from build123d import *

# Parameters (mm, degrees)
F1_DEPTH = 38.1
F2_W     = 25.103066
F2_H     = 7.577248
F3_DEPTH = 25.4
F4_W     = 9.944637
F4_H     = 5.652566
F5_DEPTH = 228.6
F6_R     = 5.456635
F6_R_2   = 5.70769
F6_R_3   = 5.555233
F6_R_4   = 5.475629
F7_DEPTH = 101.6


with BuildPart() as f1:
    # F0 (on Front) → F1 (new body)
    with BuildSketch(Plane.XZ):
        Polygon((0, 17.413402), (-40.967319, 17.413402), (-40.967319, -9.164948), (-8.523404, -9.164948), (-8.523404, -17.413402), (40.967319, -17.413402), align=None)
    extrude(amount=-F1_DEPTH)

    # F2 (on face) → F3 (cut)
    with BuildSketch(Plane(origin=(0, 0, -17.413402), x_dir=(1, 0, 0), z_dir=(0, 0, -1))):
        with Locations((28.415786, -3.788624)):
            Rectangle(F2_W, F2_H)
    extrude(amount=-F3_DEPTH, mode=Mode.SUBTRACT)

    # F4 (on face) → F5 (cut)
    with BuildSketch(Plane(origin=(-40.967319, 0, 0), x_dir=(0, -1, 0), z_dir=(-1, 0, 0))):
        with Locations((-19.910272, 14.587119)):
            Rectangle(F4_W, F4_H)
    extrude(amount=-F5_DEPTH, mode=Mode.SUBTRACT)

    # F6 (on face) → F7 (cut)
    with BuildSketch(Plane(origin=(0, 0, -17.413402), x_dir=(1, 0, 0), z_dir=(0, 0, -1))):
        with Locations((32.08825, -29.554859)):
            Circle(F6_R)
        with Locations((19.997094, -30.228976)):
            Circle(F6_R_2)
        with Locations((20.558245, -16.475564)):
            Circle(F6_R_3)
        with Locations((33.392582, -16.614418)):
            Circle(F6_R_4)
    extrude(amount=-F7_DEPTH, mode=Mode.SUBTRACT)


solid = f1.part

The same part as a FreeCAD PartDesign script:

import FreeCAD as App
import Part
import Sketcher
Q = App.Units.Quantity


def add_polygon(sketch, points):
    """Adds a closed chain of lines whose ends are joined by coincident constraints."""
    first, n = sketch.GeometryCount, len(points)
    for a, b in zip(points, points[1:] + points[:1]):
        sketch.addGeometry(Part.LineSegment(App.Vector(*a, 0), App.Vector(*b, 0)), False)
    for i in range(n):
        sketch.addConstraint(Sketcher.Constraint("Coincident", first + i, 2, first + (i + 1) % n, 1))

doc = App.newDocument("Part")
body = doc.addObject("PartDesign::Body", "Body")

sketch1 = body.newObject("Sketcher::SketchObject", "Sketch")
sketch1.AttachmentSupport = (doc.getObject("XZ_Plane"), [""])
sketch1.MapMode = "FlatFace"
add_polygon(sketch1, [(0, 17.413402), (-40.967319, 17.413402), (-40.967319, -9.164948), (-8.523404, -9.164948), (-8.523404, -17.413402), (40.967319, -17.413402)])
sketch1.addConstraint([
    Sketcher.Constraint("Horizontal", 0),
    Sketcher.Constraint("Vertical", 1),
    Sketcher.Constraint("Horizontal", 2),
    Sketcher.Constraint("Vertical", 3),
    Sketcher.Constraint("Horizontal", 4),
    Sketcher.Constraint("Symmetric", 0, 2, 4, 2, -1, 1),
    Sketcher.Constraint("PointOnObject", 5, 2, -2),
    Sketcher.Constraint("DistanceX", 0, 2, 0, 1, Q("40.967319 mm")),
    Sketcher.Constraint("DistanceY", 1, 2, 1, 1, Q("26.57835 mm")),
    Sketcher.Constraint("DistanceX", 2, 1, 2, 2, Q("32.443915 mm")),
    Sketcher.Constraint("DistanceY", 3, 2, 3, 1, Q("8.248454 mm")),
])
pad1 = body.newObject("PartDesign::Pad", "Pad")
pad1.Profile = sketch1
pad1.Length = Q("1.5 in")
pad1.Reversed = True

sketch2 = body.newObject("Sketcher::SketchObject", "Sketch001")
sketch2.AttachmentSupport = (doc.getObject("XY_Plane"), [""])
sketch2.MapMode = "FlatFace"
sketch2.AttachmentOffset = App.Placement(App.Vector(0, 0, -17.413402), App.Rotation())
add_polygon(sketch2, [(15.864253, 0), (15.864253, 7.577248), (40.967319, 7.577248), (40.967319, 0)])
sketch2.addConstraint([
    Sketcher.Constraint("Vertical", 0),
    Sketcher.Constraint("Horizontal", 1),
    Sketcher.Constraint("Vertical", 2),
    Sketcher.Constraint("Horizontal", 3),
    Sketcher.Constraint("PointOnObject", 2, 2, -1),
    Sketcher.Constraint("DistanceX", 1, 1, 1, 2, Q("25.103066 mm")),
    Sketcher.Constraint("DistanceY", 0, 1, 0, 2, Q("7.577248 mm")),
    Sketcher.Constraint("DistanceX", -1, 1, 1, 2, Q("40.967319 mm")),
])
pocket1 = body.newObject("PartDesign::Pocket", "Pocket")
pocket1.Profile = sketch2
pocket1.Length = Q("1 in")
pocket1.Reversed = True

sketch3 = body.newObject("Sketcher::SketchObject", "Sketch002")
sketch3.AttachmentSupport = (doc.getObject("YZ_Plane"), [""])
sketch3.MapMode = "FlatFace"
sketch3.AttachmentOffset = App.Placement(App.Vector(0, 0, -40.967319), App.Rotation())
add_polygon(sketch3, [(24.88259, 17.413402), (24.88259, 11.760836), (14.937954, 11.760836), (14.937954, 17.413402)])
sketch3.addConstraint([
    Sketcher.Constraint("Vertical", 0),
    Sketcher.Constraint("Horizontal", 1),
    Sketcher.Constraint("Vertical", 2),
    Sketcher.Constraint("Horizontal", 3),
    Sketcher.Constraint("DistanceX", 1, 2, 1, 1, Q("9.944637 mm")),
    Sketcher.Constraint("DistanceY", 0, 2, 0, 1, Q("5.652566 mm")),
    Sketcher.Constraint("DistanceX", -1, 1, 0, 2, Q("24.88259 mm")),
    Sketcher.Constraint("DistanceY", -1, 1, 0, 2, Q("11.760836 mm")),
])
pocket2 = body.newObject("PartDesign::Pocket", "Pocket001")
pocket2.Profile = sketch3
pocket2.Length = Q("9 in")
pocket2.Reversed = True

sketch4 = body.newObject("Sketcher::SketchObject", "Sketch003")
sketch4.AttachmentSupport = (doc.getObject("XY_Plane"), [""])
sketch4.MapMode = "FlatFace"
sketch4.AttachmentOffset = App.Placement(App.Vector(0, 0, -17.413402), App.Rotation())
sketch4.addGeometry([
    Part.Circle(App.Vector(32.08825, 29.554859, 0), App.Vector(0, 0, 1), 5.456635),
    Part.Circle(App.Vector(19.997094, 30.228976, 0), App.Vector(0, 0, 1), 5.70769),
    Part.Circle(App.Vector(20.558245, 16.475564, 0), App.Vector(0, 0, 1), 5.555233),
    Part.Circle(App.Vector(33.392582, 16.614418, 0), App.Vector(0, 0, 1), 5.475629),
], False)
sketch4.addConstraint([
    Sketcher.Constraint("Diameter", 0, Q("10.91327 mm")),
    Sketcher.Constraint("Diameter", 1, Q("11.41538 mm")),
    Sketcher.Constraint("Diameter", 2, Q("11.110466 mm")),
    Sketcher.Constraint("Diameter", 3, Q("10.951258 mm")),
    Sketcher.Constraint("DistanceX", -1, 1, 0, 3, Q("32.08825 mm")),
    Sketcher.Constraint("DistanceY", -1, 1, 0, 3, Q("29.554859 mm")),
    Sketcher.Constraint("DistanceX", -1, 1, 3, 3, Q("33.392582 mm")),
    Sketcher.Constraint("DistanceY", -1, 1, 3, 3, Q("16.614418 mm")),
    Sketcher.Constraint("DistanceX", 1, 3, 2, 3, Q("0.561151 mm")),
    Sketcher.Constraint("DistanceX", -1, 1, 1, 3, Q("19.997094 mm")),
    Sketcher.Constraint("DistanceY", -1, 1, 1, 3, Q("30.228976 mm")),
    Sketcher.Constraint("DistanceY", -1, 1, 2, 3, Q("16.475564 mm")),
])
pocket3 = body.newObject("PartDesign::Pocket", "Pocket002")
pocket3.Profile = sketch4
pocket3.Length = Q("4 in")
pocket3.Reversed = True

doc.recompute()
